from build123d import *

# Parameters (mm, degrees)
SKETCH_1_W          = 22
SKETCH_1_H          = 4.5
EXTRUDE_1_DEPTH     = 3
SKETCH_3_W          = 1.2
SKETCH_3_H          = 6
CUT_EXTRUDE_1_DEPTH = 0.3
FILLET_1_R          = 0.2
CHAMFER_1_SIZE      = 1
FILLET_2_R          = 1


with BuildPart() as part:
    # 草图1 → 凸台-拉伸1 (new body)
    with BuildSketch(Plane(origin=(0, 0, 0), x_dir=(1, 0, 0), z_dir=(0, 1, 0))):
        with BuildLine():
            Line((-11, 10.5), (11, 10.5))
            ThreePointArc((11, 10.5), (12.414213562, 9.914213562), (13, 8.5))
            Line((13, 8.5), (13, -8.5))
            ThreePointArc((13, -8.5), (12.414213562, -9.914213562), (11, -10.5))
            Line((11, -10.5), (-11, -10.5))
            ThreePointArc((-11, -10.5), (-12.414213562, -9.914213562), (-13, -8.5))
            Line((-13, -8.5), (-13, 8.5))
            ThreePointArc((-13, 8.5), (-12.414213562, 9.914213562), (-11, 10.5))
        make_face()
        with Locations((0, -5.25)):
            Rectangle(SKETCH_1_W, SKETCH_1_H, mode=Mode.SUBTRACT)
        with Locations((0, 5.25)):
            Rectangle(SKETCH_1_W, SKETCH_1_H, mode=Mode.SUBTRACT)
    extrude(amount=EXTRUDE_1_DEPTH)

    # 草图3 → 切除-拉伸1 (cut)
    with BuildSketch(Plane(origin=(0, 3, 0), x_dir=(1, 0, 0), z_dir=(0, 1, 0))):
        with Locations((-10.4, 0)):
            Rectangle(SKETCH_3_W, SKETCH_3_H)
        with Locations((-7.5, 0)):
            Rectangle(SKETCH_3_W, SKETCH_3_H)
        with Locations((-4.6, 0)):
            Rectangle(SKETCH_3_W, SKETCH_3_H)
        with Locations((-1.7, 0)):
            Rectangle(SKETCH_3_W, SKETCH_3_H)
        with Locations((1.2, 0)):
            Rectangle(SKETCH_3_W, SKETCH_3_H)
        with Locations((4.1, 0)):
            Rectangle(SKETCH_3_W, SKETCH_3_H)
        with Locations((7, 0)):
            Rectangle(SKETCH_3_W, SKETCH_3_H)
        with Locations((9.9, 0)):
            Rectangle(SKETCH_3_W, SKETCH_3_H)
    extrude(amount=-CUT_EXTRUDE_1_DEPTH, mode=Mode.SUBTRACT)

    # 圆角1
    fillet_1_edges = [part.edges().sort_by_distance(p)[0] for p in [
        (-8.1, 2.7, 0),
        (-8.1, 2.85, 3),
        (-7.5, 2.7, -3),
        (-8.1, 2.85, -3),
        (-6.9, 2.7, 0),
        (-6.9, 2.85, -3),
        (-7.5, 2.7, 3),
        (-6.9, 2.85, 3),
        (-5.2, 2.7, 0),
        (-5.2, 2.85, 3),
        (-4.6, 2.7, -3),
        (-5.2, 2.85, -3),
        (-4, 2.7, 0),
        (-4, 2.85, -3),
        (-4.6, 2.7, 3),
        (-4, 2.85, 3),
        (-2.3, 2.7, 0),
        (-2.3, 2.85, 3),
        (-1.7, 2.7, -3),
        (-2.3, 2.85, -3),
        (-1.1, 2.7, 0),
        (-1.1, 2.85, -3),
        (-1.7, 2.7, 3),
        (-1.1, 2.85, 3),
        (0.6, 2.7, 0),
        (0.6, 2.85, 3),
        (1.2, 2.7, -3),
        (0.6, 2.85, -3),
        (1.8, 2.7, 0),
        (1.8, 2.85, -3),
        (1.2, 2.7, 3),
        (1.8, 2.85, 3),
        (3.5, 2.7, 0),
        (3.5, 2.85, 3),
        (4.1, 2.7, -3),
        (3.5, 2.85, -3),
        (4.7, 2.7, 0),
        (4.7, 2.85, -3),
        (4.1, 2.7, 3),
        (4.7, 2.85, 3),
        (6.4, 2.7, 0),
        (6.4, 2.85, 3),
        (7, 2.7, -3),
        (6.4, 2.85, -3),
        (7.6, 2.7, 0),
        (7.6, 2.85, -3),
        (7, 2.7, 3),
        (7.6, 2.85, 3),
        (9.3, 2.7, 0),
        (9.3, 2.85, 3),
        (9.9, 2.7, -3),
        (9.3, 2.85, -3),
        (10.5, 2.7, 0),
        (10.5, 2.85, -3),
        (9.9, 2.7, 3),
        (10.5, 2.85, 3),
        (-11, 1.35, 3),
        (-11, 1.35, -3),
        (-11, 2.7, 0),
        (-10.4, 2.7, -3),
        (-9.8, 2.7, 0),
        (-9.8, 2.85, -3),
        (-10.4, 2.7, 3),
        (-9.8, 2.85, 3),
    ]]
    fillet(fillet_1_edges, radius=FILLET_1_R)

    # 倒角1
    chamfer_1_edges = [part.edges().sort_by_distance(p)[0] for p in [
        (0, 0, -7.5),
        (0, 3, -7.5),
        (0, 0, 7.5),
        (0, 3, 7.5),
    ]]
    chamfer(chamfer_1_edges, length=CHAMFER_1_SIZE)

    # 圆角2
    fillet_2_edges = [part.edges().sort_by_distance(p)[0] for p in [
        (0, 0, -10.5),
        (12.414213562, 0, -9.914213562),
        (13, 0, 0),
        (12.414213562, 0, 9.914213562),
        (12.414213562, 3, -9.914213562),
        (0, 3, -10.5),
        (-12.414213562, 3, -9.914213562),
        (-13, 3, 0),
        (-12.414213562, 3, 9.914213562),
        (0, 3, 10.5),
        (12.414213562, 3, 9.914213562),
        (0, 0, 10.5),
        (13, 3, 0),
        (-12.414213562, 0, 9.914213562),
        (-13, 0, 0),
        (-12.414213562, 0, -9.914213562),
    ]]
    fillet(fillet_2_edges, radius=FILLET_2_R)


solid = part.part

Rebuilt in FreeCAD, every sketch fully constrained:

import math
import FreeCAD as App
import Part
import Sketcher

V = App.Vector


def edges_at(feature, points):
    """Names of the edges that pass closest to the given points."""
    edges = feature.Shape.Edges
    near = lambda p: min(range(len(edges)), key=lambda i: edges[i].distToShape(Part.Vertex(*p))[0])
    return sorted({f"Edge{near(p) + 1}" for p in points})


def add_polygon(sketch, points):
    """Adds a closed chain of lines whose ends are joined by coincident constraints."""
    first, n = sketch.GeometryCount, len(points)
    for a, b in zip(points, points[1:] + points[:1]):
        sketch.addGeometry(Part.LineSegment(App.Vector(*a, 0), App.Vector(*b, 0)), False)
    for i in range(n):
        sketch.addConstraint(Sketcher.Constraint("Coincident", first + i, 2, first + (i + 1) % n, 1))

doc = App.newDocument("Part")
body = doc.addObject("PartDesign::Body", "Body")

# Sketch on XZ plane
sketch1 = body.newObject("Sketcher::SketchObject", "Sketch")
sketch1.AttachmentSupport = (doc.getObject("XZ_Plane"), [""])
sketch1.MapMode = "FlatFace"
sketch1.addGeometry(Part.LineSegment(V(11, -10.5, 0), V(-11, -10.5, 0)), False)  # 0
sketch1.addGeometry(Part.ArcOfCircle(Part.Circle(V(-11, -8.5, 0), V(0, 0, 1), 2), math.radians(-180), math.radians(-90)), False)  # 1
sketch1.addGeometry(Part.LineSegment(V(-13, -8.5, 0), V(-13, 8.5, 0)), False)  # 2
sketch1.addGeometry(Part.ArcOfCircle(Part.Circle(V(-11, 8.5, 0), V(0, 0, 1), 2), math.radians(90), math.radians(180)), False)  # 3
sketch1.addGeometry(Part.LineSegment(V(-11, 10.5, 0), V(11, 10.5, 0)), False)  # 4
sketch1.addGeometry(Part.ArcOfCircle(Part.Circle(V(11, 8.5, 0), V(0, 0, 1), 2), math.radians(0), math.radians(90)), False)  # 5
sketch1.addGeometry(Part.LineSegment(V(13, 8.5, 0), V(13, -8.5, 0)), False)  # 6
sketch1.addGeometry(Part.ArcOfCircle(Part.Circle(V(11, -8.5, 0), V(0, 0, 1), 2), math.radians(-90), math.radians(0)), False)  # 7
add_polygon(sketch1, [(-11, 7.5), (-11, 3), (11, 3), (11, 7.5)])  # lines 8-11
add_polygon(sketch1, [(-11, -3), (-11, -7.5), (11, -7.5), (11, -3)])  # lines 12-15
sketch1.addConstraint([
    Sketcher.Constraint("Tangent", 0, 2, 1, 2),
    Sketcher.Constraint("Tangent", 1, 1, 2, 1),
    Sketcher.Constraint("Tangent", 2, 2, 3, 2),
    Sketcher.Constraint("Tangent", 3, 1, 4, 1),
    Sketcher.Constraint("Tangent", 4, 2, 5, 2),
    Sketcher.Constraint("Tangent", 5, 1, 6, 1),
    Sketcher.Constraint("Tangent", 6, 2, 7, 2),
    Sketcher.Constraint("Tangent", 7, 1, 0, 1),
    Sketcher.Constraint("Horizontal", 0),
    Sketcher.Constraint("Vertical", 2),
    Sketcher.Constraint("Horizontal", 4),
    Sketcher.Constraint("Vertical", 6),
    Sketcher.Constraint("Vertical", 8),
    Sketcher.Constraint("Horizontal", 9),
    Sketcher.Constraint("Vertical", 10),
    Sketcher.Constraint("Horizontal", 11),
    Sketcher.Constraint("Vertical", 12),
    Sketcher.Constraint("Horizontal", 13),
    Sketcher.Constraint("Vertical", 14),
    Sketcher.Constraint("Horizontal", 15),
    Sketcher.Constraint("Equal", 1, 3),
    Sketcher.Constraint("Equal", 3, 5),
    Sketcher.Constraint("Equal", 5, 7),
    Sketcher.Constraint("Symmetric", 1, 3, 5, 3, -1, 1),
    Sketcher.Constraint("Symmetric", 10, 2, 12, 2, -1, 1),
    Sketcher.Constraint("Symmetric", 8, 2, 14, 2, -1, 1),
    Sketcher.Constraint("Vertical", 3, 1, 8, 2),
    Sketcher.Constraint("Vertical", 7, 1, 9, 2),
    Sketcher.Constraint("Radius", 1, 2.0),
    Sketcher.Constraint("DistanceX", 0, 2, 0, 1, 22.0),
    Sketcher.Constraint("DistanceY", 2, 1, 2, 2, 17.0),
    Sketcher.Constraint("DistanceY", 8, 2, 8, 1, 4.5),
    Sketcher.Constraint("DistanceY", -1, 1, 8, 2, 3.0),
])
pad1 = body.newObject("PartDesign::Pad", "Pad")
pad1.Profile = sketch1
pad1.Length = 3
pad1.Reversed = True

# Sketch on XZ plane
sketch2 = body.newObject("Sketcher::SketchObject", "Sketch001")
sketch2.AttachmentSupport = (doc.getObject("XZ_Plane"), [""])
sketch2.MapMode = "FlatFace"
sketch2.AttachmentOffset = App.Placement(V(0, 0, -3), App.Rotation())
add_polygon(sketch2, [(-11, -3), (-11, 3), (-9.8, 3), (-9.8, -3)])  # lines 0-3
add_polygon(sketch2, [(-8.1, -3), (-8.1, 3), (-6.9, 3), (-6.9, -3)])  # lines 4-7
add_polygon(sketch2, [(-5.2, -3), (-5.2, 3), (-4, 3), (-4, -3)])  # lines 8-11
add_polygon(sketch2, [(-2.3, -3), (-2.3, 3), (-1.1, 3), (-1.1, -3)])  # lines 12-15
add_polygon(sketch2, [(0.6, -3), (0.6, 3), (1.8, 3), (1.8, -3)])  # lines 16-19
add_polygon(sketch2, [(3.5, -3), (3.5, 3), (4.7, 3), (4.7, -3)])  # lines 20-23
add_polygon(sketch2, [(6.4, -3), (6.4, 3), (7.6, 3), (7.6, -3)])  # lines 24-27
add_polygon(sketch2, [(9.3, -3), (9.3, 3), (10.5, 3), (10.5, -3)])  # lines 28-31
sketch2.addConstraint([
    Sketcher.Constraint("Vertical", 0),
    Sketcher.Constraint("Horizontal", 1),
    Sketcher.Constraint("Vertical", 2),
    Sketcher.Constraint("Horizontal", 3),
    Sketcher.Constraint("Vertical", 4),
    Sketcher.Constraint("Horizontal", 5),
    Sketcher.Constraint("Vertical", 6),
    Sketcher.Constraint("Horizontal", 7),
    Sketcher.Constraint("Vertical", 8),
    Sketcher.Constraint("Horizontal", 9),
    Sketcher.Constraint("Vertical", 10),
    Sketcher.Constraint("Horizontal", 11),
    Sketcher.Constraint("Vertical", 12),
    Sketcher.Constraint("Horizontal", 13),
    Sketcher.Constraint("Vertical", 14),
    Sketcher.Constraint("Horizontal", 15),
    Sketcher.Constraint("Vertical", 16),
    Sketcher.Constraint("Horizontal", 17),
    Sketcher.Constraint("Vertical", 18),
    Sketcher.Constraint("Horizontal", 19),
    Sketcher.Constraint("Vertical", 20),
    Sketcher.Constraint("Horizontal", 21),
    Sketcher.Constraint("Vertical", 22),
    Sketcher.Constraint("Horizontal", 23),
    Sketcher.Constraint("Vertical", 24),
    Sketcher.Constraint("Horizontal", 25),
    Sketcher.Constraint("Vertical", 26),
    Sketcher.Constraint("Horizontal", 27),
    Sketcher.Constraint("Vertical", 28),
    Sketcher.Constraint("Horizontal", 29),
    Sketcher.Constraint("Vertical", 30),
    Sketcher.Constraint("Horizontal", 31),
    Sketcher.Constraint("Horizontal", 1, 2, 4, 2),
    Sketcher.Constraint("Horizontal", 3, 2, 6, 2),
    Sketcher.Constraint("Horizontal", 5, 2, 8, 2),
    Sketcher.Constraint("Horizontal", 7, 2, 10, 2),
    Sketcher.Constraint("Horizontal", 9, 2, 12, 2),
    Sketcher.Constraint("Horizontal", 11, 2, 14, 2),
    Sketcher.Constraint("Horizontal", 13, 2, 16, 2),
    Sketcher.Constraint("Horizontal", 15, 2, 18, 2),
    Sketcher.Constraint("Horizontal", 17, 2, 20, 2),
    Sketcher.Constraint("Horizontal", 19, 2, 22, 2),
    Sketcher.Constraint("Horizontal", 21, 2, 24, 2),
    Sketcher.Constraint("Horizontal", 23, 2, 26, 2),
    Sketcher.Constraint("Horizontal", 25, 2, 28, 2),
    Sketcher.Constraint("Horizontal", 27, 2, 30, 2),
    Sketcher.Constraint("Equal", 3, 5),
    Sketcher.Constraint("Equal", 7, 9),
    Sketcher.Constraint("Equal", 11, 13),
    Sketcher.Constraint("Equal", 15, 17),
    Sketcher.Constraint("Equal", 19, 21),
    Sketcher.Constraint("Equal", 23, 25),
    Sketcher.Constraint("Equal", 27, 29),
    Sketcher.Constraint("DistanceY", 0, 1, 0, 2, 6.0),
    Sketcher.Constraint("DistanceX", 1, 1, 1, 2, 1.2),
    Sketcher.Constraint("DistanceX", 0, 2, -1, 1, 11.0),
    Sketcher.Constraint("DistanceY", -1, 1, 0, 2, 3.0),
    Sketcher.Constraint("DistanceX", 9, 2, -1, 1, 4.0),
    Sketcher.Constraint("DistanceX", 4, 2, -1, 1, 8.1),
    Sketcher.Constraint("DistanceX", 12, 2, -1, 1, 2.3),
    Sketcher.Constraint("DistanceX", -1, 1, 16, 2, 0.6),
    Sketcher.Constraint("DistanceX", -1, 1, 20, 2, 3.5),
    Sketcher.Constraint("DistanceX", -1, 1, 24, 2, 6.4),
    Sketcher.Constraint("DistanceX", -1, 1, 28, 2, 9.3),
])
pocket1 = body.newObject("PartDesign::Pocket", "Pocket")
pocket1.Profile = sketch2
pocket1.Length = 0.3
pocket1.Reversed = True
doc.recompute()

fillet = body.newObject("PartDesign::Fillet", "Fillet")
fillet.Base = (pocket1, edges_at(pocket1, [
    (-8.1, 2.7, 0),
    (-8.1, 2.85, 3),
    (-7.5, 2.7, -3),
    (-8.1, 2.85, -3),
    (-6.9, 2.7, 0),
    (-6.9, 2.85, -3),
    (-7.5, 2.7, 3),
    (-6.9, 2.85, 3),
    (-5.2, 2.7, 0),
    (-5.2, 2.85, 3),
    (-4.6, 2.7, -3),
    (-5.2, 2.85, -3),
    (-4, 2.7, 0),
    (-4, 2.85, -3),
    (-4.6, 2.7, 3),
    (-4, 2.85, 3),
    (-2.3, 2.7, 0),
    (-2.3, 2.85, 3),
    (-1.7, 2.7, -3),
    (-2.3, 2.85, -3),
    (-1.1, 2.7, 0),
    (-1.1, 2.85, -3),
    (-1.7, 2.7, 3),
    (-1.1, 2.85, 3),
    (0.6, 2.7, 0),
    (0.6, 2.85, 3),
    (1.2, 2.7, -3),
    (0.6, 2.85, -3),
    (1.8, 2.7, 0),
    (1.8, 2.85, -3),
    (1.2, 2.7, 3),
    (1.8, 2.85, 3),
    (3.5, 2.7, 0),
    (3.5, 2.85, 3),
    (4.1, 2.7, -3),
    (3.5, 2.85, -3),
    (4.7, 2.7, 0),
    (4.7, 2.85, -3),
    (4.1, 2.7, 3),
    (4.7, 2.85, 3),
    (6.4, 2.7, 0),
    (6.4, 2.85, 3),
    (7, 2.7, -3),
    (6.4, 2.85, -3),
    (7.6, 2.7, 0),
    (7.6, 2.85, -3),
    (7, 2.7, 3),
    (7.6, 2.85, 3),
    (9.3, 2.7, 0),
    (9.3, 2.85, 3),
    (9.9, 2.7, -3),
    (9.3, 2.85, -3),
    (10.5, 2.7, 0),
    (10.5, 2.85, -3),
    (9.9, 2.7, 3),
    (10.5, 2.85, 3),
    (-11, 1.35, 3),
    (-11, 1.35, -3),
    (-11, 2.7, 0),
    (-10.4, 2.7, -3),
    (-9.8, 2.7, 0),
    (-9.8, 2.85, -3),
    (-10.4, 2.7, 3),
    (-9.8, 2.85, 3),
]))
fillet.Radius = 0.2
doc.recompute()

chamfer = body.newObject("PartDesign::Chamfer", "Chamfer")
chamfer.Base = (fillet, edges_at(fillet, [
    (0, 0, -7.5),
    (0, 3, -7.5),
    (0, 0, 7.5),
    (0, 3, 7.5),
]))
chamfer.Size = 1
doc.recompute()

fillet2 = body.newObject("PartDesign::Fillet", "Fillet001")
fillet2.Base = (chamfer, edges_at(chamfer, [
    (0, 0, -10.5),
    (12.414, 0, -9.914),
    (13, 0, 0),
    (12.414, 0, 9.914),
    (12.414, 3, -9.914),
    (0, 3, -10.5),
    (-12.414, 3, -9.914),
    (-13, 3, 0),
    (-12.414, 3, 9.914),
    (0, 3, 10.5),
    (12.414, 3, 9.914),
    (0, 0, 10.5),
    (13, 3, 0),
    (-12.414, 0, 9.914),
    (-13, 0, 0),
    (-12.414, 0, -9.914),
]))
fillet2.Radius = 1

doc.recompute()
